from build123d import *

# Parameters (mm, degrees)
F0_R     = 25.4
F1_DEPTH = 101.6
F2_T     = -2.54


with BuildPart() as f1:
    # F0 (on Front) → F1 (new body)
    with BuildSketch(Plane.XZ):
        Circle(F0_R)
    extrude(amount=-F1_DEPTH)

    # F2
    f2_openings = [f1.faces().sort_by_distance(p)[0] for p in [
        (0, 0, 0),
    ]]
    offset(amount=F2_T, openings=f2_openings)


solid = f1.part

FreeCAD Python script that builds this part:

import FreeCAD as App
import Part
import Sketcher

V = App.Vector
Q = App.Units.Quantity


def faces_at(feature, points):
    """Names of the faces that lie closest to the given points."""
    faces = feature.Shape.Faces
    near = lambda p: min(range(len(faces)), key=lambda i: faces[i].distToShape(Part.Vertex(*p))[0])
    return sorted({f"Face{near(p) + 1}" for p in points})

doc = App.newDocument("Part")
body = doc.addObject("PartDesign::Body", "Body")

sketch1 = doc.addObject("Sketcher::SketchObject", "Sketch")
body.addObject(sketch1)
sketch1.AttachmentSupport = (doc.XZ_Plane, [""])
sketch1.MapMode = "FlatFace"
sketch1.addGeometry(Part.Circle(V(0, 0, 0), V(0, 0, 1), 25.4), False)
sketch1.addConstraint(Sketcher.Constraint("Coincident", 0, 3, -1, 1))
sketch1.addConstraint(Sketcher.Constraint("Diameter", 0, Q("2 in")))
pad1 = doc.addObject("PartDesign::Pad", "Pad")
body.addObject(pad1)
pad1.Profile = sketch1
pad1.Length = Q("4 in")
pad1.Reversed = True
doc.recompute()

thickness = doc.addObject("PartDesign::Thickness", "Thickness")
body.addObject(thickness)
thickness.Base = (pad1, faces_at(pad1, [(0, 0, 0)]))
thickness.Value = Q("0.1 in")
thickness.Reversed = True
thickness.Join = "Arc"

doc.recompute()
